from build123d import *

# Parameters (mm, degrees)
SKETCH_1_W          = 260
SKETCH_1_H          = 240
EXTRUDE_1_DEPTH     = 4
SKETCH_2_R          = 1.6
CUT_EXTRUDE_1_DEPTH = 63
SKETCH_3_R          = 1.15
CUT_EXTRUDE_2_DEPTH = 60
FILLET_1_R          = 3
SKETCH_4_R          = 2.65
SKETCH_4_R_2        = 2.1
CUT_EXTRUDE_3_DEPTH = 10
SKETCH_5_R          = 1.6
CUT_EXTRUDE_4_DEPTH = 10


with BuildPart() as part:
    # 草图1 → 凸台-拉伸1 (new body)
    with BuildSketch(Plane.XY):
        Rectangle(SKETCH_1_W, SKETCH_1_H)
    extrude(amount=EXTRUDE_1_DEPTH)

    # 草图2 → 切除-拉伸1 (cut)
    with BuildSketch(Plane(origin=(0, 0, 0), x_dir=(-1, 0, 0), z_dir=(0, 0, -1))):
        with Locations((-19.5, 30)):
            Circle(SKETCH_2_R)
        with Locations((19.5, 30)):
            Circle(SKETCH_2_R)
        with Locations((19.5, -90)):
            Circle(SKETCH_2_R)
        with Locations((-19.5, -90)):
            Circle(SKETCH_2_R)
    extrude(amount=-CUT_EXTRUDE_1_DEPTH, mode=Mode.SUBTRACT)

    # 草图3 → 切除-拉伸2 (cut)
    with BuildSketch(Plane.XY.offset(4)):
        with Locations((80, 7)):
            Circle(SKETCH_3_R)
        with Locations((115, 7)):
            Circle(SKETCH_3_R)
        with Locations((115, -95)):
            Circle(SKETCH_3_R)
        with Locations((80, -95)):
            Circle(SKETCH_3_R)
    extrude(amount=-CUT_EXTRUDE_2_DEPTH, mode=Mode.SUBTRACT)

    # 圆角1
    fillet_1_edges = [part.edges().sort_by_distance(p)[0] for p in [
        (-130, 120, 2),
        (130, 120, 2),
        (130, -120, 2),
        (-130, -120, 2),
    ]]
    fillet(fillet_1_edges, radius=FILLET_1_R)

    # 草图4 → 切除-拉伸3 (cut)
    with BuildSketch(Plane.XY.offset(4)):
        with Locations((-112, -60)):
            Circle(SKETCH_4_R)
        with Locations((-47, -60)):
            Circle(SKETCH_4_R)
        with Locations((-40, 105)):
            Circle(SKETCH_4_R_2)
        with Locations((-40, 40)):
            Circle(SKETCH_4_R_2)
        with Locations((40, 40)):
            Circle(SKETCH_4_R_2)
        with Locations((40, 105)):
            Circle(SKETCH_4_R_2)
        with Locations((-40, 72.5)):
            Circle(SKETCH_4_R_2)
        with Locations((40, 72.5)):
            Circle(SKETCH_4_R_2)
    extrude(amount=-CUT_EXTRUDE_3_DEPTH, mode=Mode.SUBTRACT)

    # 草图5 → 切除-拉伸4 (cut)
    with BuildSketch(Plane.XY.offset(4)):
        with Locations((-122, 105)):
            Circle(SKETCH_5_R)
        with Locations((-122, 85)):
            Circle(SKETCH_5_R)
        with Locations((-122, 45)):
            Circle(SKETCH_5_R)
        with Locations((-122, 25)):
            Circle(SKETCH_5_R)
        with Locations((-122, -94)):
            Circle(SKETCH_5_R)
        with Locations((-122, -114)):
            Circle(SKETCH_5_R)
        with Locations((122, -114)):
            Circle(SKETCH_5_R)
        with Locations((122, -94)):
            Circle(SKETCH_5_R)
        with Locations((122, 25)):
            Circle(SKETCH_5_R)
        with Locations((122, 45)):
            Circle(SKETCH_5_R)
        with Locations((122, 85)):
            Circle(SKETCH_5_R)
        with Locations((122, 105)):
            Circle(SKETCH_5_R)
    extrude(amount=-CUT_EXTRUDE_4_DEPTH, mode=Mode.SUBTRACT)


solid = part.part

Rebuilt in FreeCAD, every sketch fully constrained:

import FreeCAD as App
import Part
import Sketcher
from FreeCAD import Vector
Q = App.Units.Quantity


def edges_at(feature, points):
    """Names of the edges that pass closest to the given points."""
    edges = feature.Shape.Edges
    near = lambda p: min(range(len(edges)), key=lambda i: edges[i].distToShape(Part.Vertex(*p))[0])
    return sorted({f"Edge{near(p) + 1}" for p in points})


def add_polygon(sketch, points):
    """Adds a closed chain of lines whose ends are joined by coincident constraints."""
    first, n = sketch.GeometryCount, len(points)
    for a, b in zip(points, points[1:] + points[:1]):
        sketch.addGeometry(Part.LineSegment(App.Vector(*a, 0), App.Vector(*b, 0)), False)
    for i in range(n):
        sketch.addConstraint(Sketcher.Constraint("Coincident", first + i, 2, first + (i + 1) % n, 1))

doc = App.newDocument("Part")
params = doc.addObject("Spreadsheet::Sheet", "Params")
for row, (alias, value) in enumerate([
    ("sketch1_width", "260 mm"),
    ("sketch1_height", "240 mm"),
    ("pad1_length", "4 mm"),
    ("sketch2_diameter", "3.2 mm"),
    ("pocket1_length", "63 mm"),
    ("sketch3_diameter", "2.3 mm"),
    ("pocket2_length", "60 mm"),
    ("fillet_radius", "3 mm"),
    ("sketch4_diameter", "5.3 mm"),
    ("sketch4_diameter2", "4.2 mm"),
    ("pocket3_length", "10 mm"),
    ("sketch5_diameter", "3.2 mm"),
    ("pocket4_length", "10 mm"),
], start=1):
    params.set(f"A{row}", alias)
    params.set(f"B{row}", "=" + value)
    params.setAlias(f"B{row}", alias)

body = doc.addObject("PartDesign::Body", "Body")

sketch1 = body.newObject("Sketcher::SketchObject", "Sketch")
sketch1.AttachmentSupport = (doc.getObject("XY_Plane"), [""])
sketch1.MapMode = "FlatFace"
add_polygon(sketch1, [(-130, 120), (-130, -120), (130, -120), (130, 120)])
sketch1.addConstraint(Sketcher.Constraint("Vertical", 0))
sketch1.addConstraint(Sketcher.Constraint("Horizontal", 1))
sketch1.addConstraint(Sketcher.Constraint("Vertical", 2))
sketch1.addConstraint(Sketcher.Constraint("Horizontal", 3))
sketch1.addConstraint(Sketcher.Constraint("Symmetric", 0, 2, 2, 2, -1, 1))
sketch1.addConstraint(Sketcher.Constraint("DistanceX", 1, 1, 1, 2, Q("260 mm")))
sketch1.addConstraint(Sketcher.Constraint("DistanceY", 0, 2, 0, 1, Q("240 mm")))
sketch1.setExpression("Constraints[9]", "Params.sketch1_width")
sketch1.setExpression("Constraints[10]", "Params.sketch1_height")
pad1 = body.newObject("PartDesign::Pad", "Pad")
pad1.Profile = sketch1
pad1.setExpression("Length", "Params.pad1_length")

sketch2 = body.newObject("Sketcher::SketchObject", "Sketch001")
sketch2.AttachmentSupport = (doc.getObject("XY_Plane"), [""])
sketch2.MapMode = "FlatFace"
sketch2.addGeometry(Part.Circle(Vector(19.5, 30, 0), Vector(0, 0, 1), 1.6), False)
sketch2.addGeometry(Part.Circle(Vector(-19.5, 30, 0), Vector(0, 0, 1), 1.6), False)
sketch2.addGeometry(Part.Circle(Vector(-19.5, -90, 0), Vector(0, 0, 1), 1.6), False)
sketch2.addGeometry(Part.Circle(Vector(19.5, -90, 0), Vector(0, 0, 1), 1.6), False)
sketch2.addConstraint(Sketcher.Constraint("Equal", 0, 1))
sketch2.addConstraint(Sketcher.Constraint("Equal", 1, 2))
sketch2.addConstraint(Sketcher.Constraint("Equal", 2, 3))
sketch2.addConstraint(Sketcher.Constraint("Symmetric", 0, 3, 1, 3, -2))
sketch2.addConstraint(Sketcher.Constraint("Symmetric", 2, 3, 3, 3, -2))
sketch2.addConstraint(Sketcher.Constraint("Vertical", 1, 3, 2, 3))
sketch2.addConstraint(Sketcher.Constraint("Diameter", 0, Q("3.2 mm")))
sketch2.addConstraint(Sketcher.Constraint("DistanceY", -1, 1, 0, 3, Q("30 mm")))
sketch2.addConstraint(Sketcher.Constraint("DistanceY", 2, 3, -1, 1, Q("90 mm")))
sketch2.addConstraint(Sketcher.Constraint("DistanceX", 1, 3, 0, 3, Q("39 mm")))
sketch2.setExpression("Constraints[6]", "Params.sketch2_diameter")
pocket1 = body.newObject("PartDesign::Pocket", "Pocket")
pocket1.Profile = sketch2
pocket1.setExpression("Length", "Params.pocket1_length")
pocket1.Reversed = True

sketch3 = body.newObject("Sketcher::SketchObject", "Sketch002")
sketch3.AttachmentSupport = (doc.getObject("XY_Plane"), [""])
sketch3.MapMode = "FlatFace"
sketch3.AttachmentOffset = App.Placement(Vector(0, 0, 4), App.Rotation())
sketch3.addGeometry(Part.Circle(Vector(80, 7, 0), Vector(0, 0, 1), 1.1), False)
sketch3.addGeometry(Part.Circle(Vector(115, 7, 0), Vector(0, 0, 1), 1.1), False)
sketch3.addGeometry(Part.Circle(Vector(115, -95, 0), Vector(0, 0, 1), 1.1), False)
sketch3.addGeometry(Part.Circle(Vector(80, -95, 0), Vector(0, 0, 1), 1.1), False)
sketch3.addConstraint(Sketcher.Constraint("Equal", 0, 1))
sketch3.addConstraint(Sketcher.Constraint("Equal", 1, 2))
sketch3.addConstraint(Sketcher.Constraint("Equal", 2, 3))
sketch3.addConstraint(Sketcher.Constraint("Horizontal", 0, 3, 1, 3))
sketch3.addConstraint(Sketcher.Constraint("Horizontal", 2, 3, 3, 3))
sketch3.addConstraint(Sketcher.Constraint("Vertical", 1, 3, 2, 3))
sketch3.addConstraint(Sketcher.Constraint("Vertical", 0, 3, 3, 3))
sketch3.addConstraint(Sketcher.Constraint("Diameter", 0, Q("2.3 mm")))
sketch3.addConstraint(Sketcher.Constraint("DistanceX", -1, 1, 0, 3, Q("80 mm")))
sketch3.addConstraint(Sketcher.Constraint("DistanceY", -1, 1, 0, 3, Q("7 mm")))
sketch3.addConstraint(Sketcher.Constraint("DistanceX", -1, 1, 1, 3, Q("115 mm")))
sketch3.addConstraint(Sketcher.Constraint("DistanceY", 2, 3, -1, 1, Q("95 mm")))
sketch3.setExpression("Constraints[7]", "Params.sketch3_diameter")
pocket2 = body.newObject("PartDesign::Pocket", "Pocket001")
pocket2.Profile = sketch3
pocket2.setExpression("Length", "Params.pocket2_length")
doc.recompute()

fillet = body.newObject("PartDesign::Fillet", "Fillet")
fillet.Base = (pocket2, edges_at(pocket2, [
    (-130, 120, 2),
    (130, 120, 2),
    (130, -120, 2),
    (-130, -120, 2),
]))
fillet.setExpression("Radius", "Params.fillet_radius")

sketch4 = body.newObject("Sketcher::SketchObject", "Sketch003")
sketch4.AttachmentSupport = (doc.getObject("XY_Plane"), [""])
sketch4.MapMode = "FlatFace"
sketch4.AttachmentOffset = App.Placement(Vector(0, 0, 4), App.Rotation())
sketch4.addGeometry(Part.Circle(Vector(-112, -60, 0), Vector(0, 0, 1), 2.6), False)
sketch4.addGeometry(Part.Circle(Vector(-47, -60, 0), Vector(0, 0, 1), 2.6), False)
sketch4.addGeometry(Part.Circle(Vector(-40, 105, 0), Vector(0, 0, 1), 2.1), False)
sketch4.addGeometry(Part.Circle(Vector(-40, 40, 0), Vector(0, 0, 1), 2.1), False)
sketch4.addGeometry(Part.Circle(Vector(40, 40, 0), Vector(0, 0, 1), 2.1), False)
sketch4.addGeometry(Part.Circle(Vector(40, 105, 0), Vector(0, 0, 1), 2.1), False)
sketch4.addGeometry(Part.Circle(Vector(-40, 72.5, 0), Vector(0, 0, 1), 2.1), False)
sketch4.addGeometry(Part.Circle(Vector(40, 72.5, 0), Vector(0, 0, 1), 2.1), False)
sketch4.addConstraint(Sketcher.Constraint("Equal", 0, 1))
sketch4.addConstraint(Sketcher.Constraint("Equal", 2, 3))
sketch4.addConstraint(Sketcher.Constraint("Equal", 3, 4))
sketch4.addConstraint(Sketcher.Constraint("Equal", 4, 5))
sketch4.addConstraint(Sketcher.Constraint("Equal", 5, 6))
sketch4.addConstraint(Sketcher.Constraint("Equal", 6, 7))
sketch4.addConstraint(Sketcher.Constraint("Symmetric", 3, 3, 4, 3, -2))
sketch4.addConstraint(Sketcher.Constraint("Symmetric", 2, 3, 5, 3, -2))
sketch4.addConstraint(Sketcher.Constraint("Symmetric", 6, 3, 7, 3, -2))
sketch4.addConstraint(Sketcher.Constraint("Horizontal", 0, 3, 1, 3))
sketch4.addConstraint(Sketcher.Constraint("Vertical", 2, 3, 3, 3))
sketch4.addConstraint(Sketcher.Constraint("Vertical", 3, 3, 6, 3))
sketch4.addConstraint(Sketcher.Constraint("Diameter", 0, Q("5.3 mm")))
sketch4.addConstraint(Sketcher.Constraint("Diameter", 2, Q("4.2 mm")))
sketch4.addConstraint(Sketcher.Constraint("DistanceX", 0, 3, -1, 1, Q("112 mm")))
sketch4.addConstraint(Sketcher.Constraint("DistanceY", 0, 3, -1, 1, Q("60 mm")))
sketch4.addConstraint(Sketcher.Constraint("DistanceX", 1, 3, -1, 1, Q("47 mm")))
sketch4.addConstraint(Sketcher.Constraint("DistanceX", 2, 3, -1, 1, Q("40 mm")))
sketch4.addConstraint(Sketcher.Constraint("DistanceY", -1, 1, 2, 3, Q("105 mm")))
sketch4.addConstraint(Sketcher.Constraint("DistanceY", -1, 1, 3, 3, Q("40 mm")))
sketch4.addConstraint(Sketcher.Constraint("DistanceY", -1, 1, 6, 3, Q("72.5 mm")))
sketch4.setExpression("Constraints[12]", "Params.sketch4_diameter")
sketch4.setExpression("Constraints[13]", "Params.sketch4_diameter2")
pocket3 = body.newObject("PartDesign::Pocket", "Pocket002")
pocket3.Profile = sketch4
pocket3.setExpression("Length", "Params.pocket3_length")

sketch5 = body.newObject("Sketcher::SketchObject", "Sketch004")
sketch5.AttachmentSupport = (doc.getObject("XY_Plane"), [""])
sketch5.MapMode = "FlatFace"
sketch5.AttachmentOffset = App.Placement(Vector(0, 0, 4), App.Rotation())
sketch5.addGeometry(Part.Circle(Vector(-122, 105, 0), Vector(0, 0, 1), 1.6), False)
sketch5.addGeometry(Part.Circle(Vector(-122, 85, 0), Vector(0, 0, 1), 1.6), False)
sketch5.addGeometry(Part.Circle(Vector(-122, 45, 0), Vector(0, 0, 1), 1.6), False)
sketch5.addGeometry(Part.Circle(Vector(-122, 25, 0), Vector(0, 0, 1), 1.6), False)
sketch5.addGeometry(Part.Circle(Vector(-122, -94, 0), Vector(0, 0, 1), 1.6), False)
sketch5.addGeometry(Part.Circle(Vector(-122, -114, 0), Vector(0, 0, 1), 1.6), False)
sketch5.addGeometry(Part.Circle(Vector(122, -114, 0), Vector(0, 0, 1), 1.6), False)
sketch5.addGeometry(Part.Circle(Vector(122, -94, 0), Vector(0, 0, 1), 1.6), False)
sketch5.addGeometry(Part.Circle(Vector(122, 25, 0), Vector(0, 0, 1), 1.6), False)
sketch5.addGeometry(Part.Circle(Vector(122, 45, 0), Vector(0, 0, 1), 1.6), False)
sketch5.addGeometry(Part.Circle(Vector(122, 85, 0), Vector(0, 0, 1), 1.6), False)
sketch5.addGeometry(Part.Circle(Vector(122, 105, 0), Vector(0, 0, 1), 1.6), False)
sketch5.addConstraint(Sketcher.Constraint("Equal", 0, 1))
sketch5.addConstraint(Sketcher.Constraint("Equal", 1, 2))
sketch5.addConstraint(Sketcher.Constraint("Equal", 2, 3))
sketch5.addConstraint(Sketcher.Constraint("Equal", 3, 4))
sketch5.addConstraint(Sketcher.Constraint("Equal", 4, 5))
sketch5.addConstraint(Sketcher.Constraint("Equal", 5, 6))
sketch5.addConstraint(Sketcher.Constraint("Equal", 6, 7))
sketch5.addConstraint(Sketcher.Constraint("Equal", 7, 8))
sketch5.addConstraint(Sketcher.Constraint("Equal", 8, 9))
sketch5.addConstraint(Sketcher.Constraint("Equal", 9, 10))
sketch5.addConstraint(Sketcher.Constraint("Equal", 10, 11))
sketch5.addConstraint(Sketcher.Constraint("Symmetric", 5, 3, 6, 3, -2))
sketch5.addConstraint(Sketcher.Constraint("Symmetric", 4, 3, 7, 3, -2))
sketch5.addConstraint(Sketcher.Constraint("Symmetric", 3, 3, 8, 3, -2))
sketch5.addConstraint(Sketcher.Constraint("Symmetric", 2, 3, 9, 3, -2))
sketch5.addConstraint(Sketcher.Constraint("Symmetric", 1, 3, 10, 3, -2))
sketch5.addConstraint(Sketcher.Constraint("Symmetric", 0, 3, 11, 3, -2))
sketch5.addConstraint(Sketcher.Constraint("Vertical", 0, 3, 1, 3))
sketch5.addConstraint(Sketcher.Constraint("Vertical", 1, 3, 2, 3))
sketch5.addConstraint(Sketcher.Constraint("Vertical", 2, 3, 3, 3))
sketch5.addConstraint(Sketcher.Constraint("Vertical", 3, 3, 4, 3))
sketch5.addConstraint(Sketcher.Constraint("Vertical", 4, 3, 5, 3))
sketch5.addConstraint(Sketcher.Constraint("Diameter", 0, Q("3.2 mm")))
sketch5.addConstraint(Sketcher.Constraint("DistanceX", 0, 3, -1, 1, Q("122 mm")))
sketch5.addConstraint(Sketcher.Constraint("DistanceY", -1, 1, 0, 3, Q("105 mm")))
sketch5.addConstraint(Sketcher.Constraint("DistanceY", -1, 1, 1, 3, Q("85 mm")))
sketch5.addConstraint(Sketcher.Constraint("DistanceY", -1, 1, 2, 3, Q("45 mm")))
sketch5.addConstraint(Sketcher.Constraint("DistanceY", -1, 1, 3, 3, Q("25 mm")))
sketch5.addConstraint(Sketcher.Constraint("DistanceY", 4, 3, -1, 1, Q("94 mm")))
sketch5.addConstraint(Sketcher.Constraint("DistanceY", 5, 3, -1, 1, Q("114 mm")))
sketch5.setExpression("Constraints[22]", "Params.sketch5_diameter")
pocket4 = body.newObject("PartDesign::Pocket", "Pocket003")
pocket4.Profile = sketch5
pocket4.setExpression("Length", "Params.pocket4_length")

doc.recompute()
